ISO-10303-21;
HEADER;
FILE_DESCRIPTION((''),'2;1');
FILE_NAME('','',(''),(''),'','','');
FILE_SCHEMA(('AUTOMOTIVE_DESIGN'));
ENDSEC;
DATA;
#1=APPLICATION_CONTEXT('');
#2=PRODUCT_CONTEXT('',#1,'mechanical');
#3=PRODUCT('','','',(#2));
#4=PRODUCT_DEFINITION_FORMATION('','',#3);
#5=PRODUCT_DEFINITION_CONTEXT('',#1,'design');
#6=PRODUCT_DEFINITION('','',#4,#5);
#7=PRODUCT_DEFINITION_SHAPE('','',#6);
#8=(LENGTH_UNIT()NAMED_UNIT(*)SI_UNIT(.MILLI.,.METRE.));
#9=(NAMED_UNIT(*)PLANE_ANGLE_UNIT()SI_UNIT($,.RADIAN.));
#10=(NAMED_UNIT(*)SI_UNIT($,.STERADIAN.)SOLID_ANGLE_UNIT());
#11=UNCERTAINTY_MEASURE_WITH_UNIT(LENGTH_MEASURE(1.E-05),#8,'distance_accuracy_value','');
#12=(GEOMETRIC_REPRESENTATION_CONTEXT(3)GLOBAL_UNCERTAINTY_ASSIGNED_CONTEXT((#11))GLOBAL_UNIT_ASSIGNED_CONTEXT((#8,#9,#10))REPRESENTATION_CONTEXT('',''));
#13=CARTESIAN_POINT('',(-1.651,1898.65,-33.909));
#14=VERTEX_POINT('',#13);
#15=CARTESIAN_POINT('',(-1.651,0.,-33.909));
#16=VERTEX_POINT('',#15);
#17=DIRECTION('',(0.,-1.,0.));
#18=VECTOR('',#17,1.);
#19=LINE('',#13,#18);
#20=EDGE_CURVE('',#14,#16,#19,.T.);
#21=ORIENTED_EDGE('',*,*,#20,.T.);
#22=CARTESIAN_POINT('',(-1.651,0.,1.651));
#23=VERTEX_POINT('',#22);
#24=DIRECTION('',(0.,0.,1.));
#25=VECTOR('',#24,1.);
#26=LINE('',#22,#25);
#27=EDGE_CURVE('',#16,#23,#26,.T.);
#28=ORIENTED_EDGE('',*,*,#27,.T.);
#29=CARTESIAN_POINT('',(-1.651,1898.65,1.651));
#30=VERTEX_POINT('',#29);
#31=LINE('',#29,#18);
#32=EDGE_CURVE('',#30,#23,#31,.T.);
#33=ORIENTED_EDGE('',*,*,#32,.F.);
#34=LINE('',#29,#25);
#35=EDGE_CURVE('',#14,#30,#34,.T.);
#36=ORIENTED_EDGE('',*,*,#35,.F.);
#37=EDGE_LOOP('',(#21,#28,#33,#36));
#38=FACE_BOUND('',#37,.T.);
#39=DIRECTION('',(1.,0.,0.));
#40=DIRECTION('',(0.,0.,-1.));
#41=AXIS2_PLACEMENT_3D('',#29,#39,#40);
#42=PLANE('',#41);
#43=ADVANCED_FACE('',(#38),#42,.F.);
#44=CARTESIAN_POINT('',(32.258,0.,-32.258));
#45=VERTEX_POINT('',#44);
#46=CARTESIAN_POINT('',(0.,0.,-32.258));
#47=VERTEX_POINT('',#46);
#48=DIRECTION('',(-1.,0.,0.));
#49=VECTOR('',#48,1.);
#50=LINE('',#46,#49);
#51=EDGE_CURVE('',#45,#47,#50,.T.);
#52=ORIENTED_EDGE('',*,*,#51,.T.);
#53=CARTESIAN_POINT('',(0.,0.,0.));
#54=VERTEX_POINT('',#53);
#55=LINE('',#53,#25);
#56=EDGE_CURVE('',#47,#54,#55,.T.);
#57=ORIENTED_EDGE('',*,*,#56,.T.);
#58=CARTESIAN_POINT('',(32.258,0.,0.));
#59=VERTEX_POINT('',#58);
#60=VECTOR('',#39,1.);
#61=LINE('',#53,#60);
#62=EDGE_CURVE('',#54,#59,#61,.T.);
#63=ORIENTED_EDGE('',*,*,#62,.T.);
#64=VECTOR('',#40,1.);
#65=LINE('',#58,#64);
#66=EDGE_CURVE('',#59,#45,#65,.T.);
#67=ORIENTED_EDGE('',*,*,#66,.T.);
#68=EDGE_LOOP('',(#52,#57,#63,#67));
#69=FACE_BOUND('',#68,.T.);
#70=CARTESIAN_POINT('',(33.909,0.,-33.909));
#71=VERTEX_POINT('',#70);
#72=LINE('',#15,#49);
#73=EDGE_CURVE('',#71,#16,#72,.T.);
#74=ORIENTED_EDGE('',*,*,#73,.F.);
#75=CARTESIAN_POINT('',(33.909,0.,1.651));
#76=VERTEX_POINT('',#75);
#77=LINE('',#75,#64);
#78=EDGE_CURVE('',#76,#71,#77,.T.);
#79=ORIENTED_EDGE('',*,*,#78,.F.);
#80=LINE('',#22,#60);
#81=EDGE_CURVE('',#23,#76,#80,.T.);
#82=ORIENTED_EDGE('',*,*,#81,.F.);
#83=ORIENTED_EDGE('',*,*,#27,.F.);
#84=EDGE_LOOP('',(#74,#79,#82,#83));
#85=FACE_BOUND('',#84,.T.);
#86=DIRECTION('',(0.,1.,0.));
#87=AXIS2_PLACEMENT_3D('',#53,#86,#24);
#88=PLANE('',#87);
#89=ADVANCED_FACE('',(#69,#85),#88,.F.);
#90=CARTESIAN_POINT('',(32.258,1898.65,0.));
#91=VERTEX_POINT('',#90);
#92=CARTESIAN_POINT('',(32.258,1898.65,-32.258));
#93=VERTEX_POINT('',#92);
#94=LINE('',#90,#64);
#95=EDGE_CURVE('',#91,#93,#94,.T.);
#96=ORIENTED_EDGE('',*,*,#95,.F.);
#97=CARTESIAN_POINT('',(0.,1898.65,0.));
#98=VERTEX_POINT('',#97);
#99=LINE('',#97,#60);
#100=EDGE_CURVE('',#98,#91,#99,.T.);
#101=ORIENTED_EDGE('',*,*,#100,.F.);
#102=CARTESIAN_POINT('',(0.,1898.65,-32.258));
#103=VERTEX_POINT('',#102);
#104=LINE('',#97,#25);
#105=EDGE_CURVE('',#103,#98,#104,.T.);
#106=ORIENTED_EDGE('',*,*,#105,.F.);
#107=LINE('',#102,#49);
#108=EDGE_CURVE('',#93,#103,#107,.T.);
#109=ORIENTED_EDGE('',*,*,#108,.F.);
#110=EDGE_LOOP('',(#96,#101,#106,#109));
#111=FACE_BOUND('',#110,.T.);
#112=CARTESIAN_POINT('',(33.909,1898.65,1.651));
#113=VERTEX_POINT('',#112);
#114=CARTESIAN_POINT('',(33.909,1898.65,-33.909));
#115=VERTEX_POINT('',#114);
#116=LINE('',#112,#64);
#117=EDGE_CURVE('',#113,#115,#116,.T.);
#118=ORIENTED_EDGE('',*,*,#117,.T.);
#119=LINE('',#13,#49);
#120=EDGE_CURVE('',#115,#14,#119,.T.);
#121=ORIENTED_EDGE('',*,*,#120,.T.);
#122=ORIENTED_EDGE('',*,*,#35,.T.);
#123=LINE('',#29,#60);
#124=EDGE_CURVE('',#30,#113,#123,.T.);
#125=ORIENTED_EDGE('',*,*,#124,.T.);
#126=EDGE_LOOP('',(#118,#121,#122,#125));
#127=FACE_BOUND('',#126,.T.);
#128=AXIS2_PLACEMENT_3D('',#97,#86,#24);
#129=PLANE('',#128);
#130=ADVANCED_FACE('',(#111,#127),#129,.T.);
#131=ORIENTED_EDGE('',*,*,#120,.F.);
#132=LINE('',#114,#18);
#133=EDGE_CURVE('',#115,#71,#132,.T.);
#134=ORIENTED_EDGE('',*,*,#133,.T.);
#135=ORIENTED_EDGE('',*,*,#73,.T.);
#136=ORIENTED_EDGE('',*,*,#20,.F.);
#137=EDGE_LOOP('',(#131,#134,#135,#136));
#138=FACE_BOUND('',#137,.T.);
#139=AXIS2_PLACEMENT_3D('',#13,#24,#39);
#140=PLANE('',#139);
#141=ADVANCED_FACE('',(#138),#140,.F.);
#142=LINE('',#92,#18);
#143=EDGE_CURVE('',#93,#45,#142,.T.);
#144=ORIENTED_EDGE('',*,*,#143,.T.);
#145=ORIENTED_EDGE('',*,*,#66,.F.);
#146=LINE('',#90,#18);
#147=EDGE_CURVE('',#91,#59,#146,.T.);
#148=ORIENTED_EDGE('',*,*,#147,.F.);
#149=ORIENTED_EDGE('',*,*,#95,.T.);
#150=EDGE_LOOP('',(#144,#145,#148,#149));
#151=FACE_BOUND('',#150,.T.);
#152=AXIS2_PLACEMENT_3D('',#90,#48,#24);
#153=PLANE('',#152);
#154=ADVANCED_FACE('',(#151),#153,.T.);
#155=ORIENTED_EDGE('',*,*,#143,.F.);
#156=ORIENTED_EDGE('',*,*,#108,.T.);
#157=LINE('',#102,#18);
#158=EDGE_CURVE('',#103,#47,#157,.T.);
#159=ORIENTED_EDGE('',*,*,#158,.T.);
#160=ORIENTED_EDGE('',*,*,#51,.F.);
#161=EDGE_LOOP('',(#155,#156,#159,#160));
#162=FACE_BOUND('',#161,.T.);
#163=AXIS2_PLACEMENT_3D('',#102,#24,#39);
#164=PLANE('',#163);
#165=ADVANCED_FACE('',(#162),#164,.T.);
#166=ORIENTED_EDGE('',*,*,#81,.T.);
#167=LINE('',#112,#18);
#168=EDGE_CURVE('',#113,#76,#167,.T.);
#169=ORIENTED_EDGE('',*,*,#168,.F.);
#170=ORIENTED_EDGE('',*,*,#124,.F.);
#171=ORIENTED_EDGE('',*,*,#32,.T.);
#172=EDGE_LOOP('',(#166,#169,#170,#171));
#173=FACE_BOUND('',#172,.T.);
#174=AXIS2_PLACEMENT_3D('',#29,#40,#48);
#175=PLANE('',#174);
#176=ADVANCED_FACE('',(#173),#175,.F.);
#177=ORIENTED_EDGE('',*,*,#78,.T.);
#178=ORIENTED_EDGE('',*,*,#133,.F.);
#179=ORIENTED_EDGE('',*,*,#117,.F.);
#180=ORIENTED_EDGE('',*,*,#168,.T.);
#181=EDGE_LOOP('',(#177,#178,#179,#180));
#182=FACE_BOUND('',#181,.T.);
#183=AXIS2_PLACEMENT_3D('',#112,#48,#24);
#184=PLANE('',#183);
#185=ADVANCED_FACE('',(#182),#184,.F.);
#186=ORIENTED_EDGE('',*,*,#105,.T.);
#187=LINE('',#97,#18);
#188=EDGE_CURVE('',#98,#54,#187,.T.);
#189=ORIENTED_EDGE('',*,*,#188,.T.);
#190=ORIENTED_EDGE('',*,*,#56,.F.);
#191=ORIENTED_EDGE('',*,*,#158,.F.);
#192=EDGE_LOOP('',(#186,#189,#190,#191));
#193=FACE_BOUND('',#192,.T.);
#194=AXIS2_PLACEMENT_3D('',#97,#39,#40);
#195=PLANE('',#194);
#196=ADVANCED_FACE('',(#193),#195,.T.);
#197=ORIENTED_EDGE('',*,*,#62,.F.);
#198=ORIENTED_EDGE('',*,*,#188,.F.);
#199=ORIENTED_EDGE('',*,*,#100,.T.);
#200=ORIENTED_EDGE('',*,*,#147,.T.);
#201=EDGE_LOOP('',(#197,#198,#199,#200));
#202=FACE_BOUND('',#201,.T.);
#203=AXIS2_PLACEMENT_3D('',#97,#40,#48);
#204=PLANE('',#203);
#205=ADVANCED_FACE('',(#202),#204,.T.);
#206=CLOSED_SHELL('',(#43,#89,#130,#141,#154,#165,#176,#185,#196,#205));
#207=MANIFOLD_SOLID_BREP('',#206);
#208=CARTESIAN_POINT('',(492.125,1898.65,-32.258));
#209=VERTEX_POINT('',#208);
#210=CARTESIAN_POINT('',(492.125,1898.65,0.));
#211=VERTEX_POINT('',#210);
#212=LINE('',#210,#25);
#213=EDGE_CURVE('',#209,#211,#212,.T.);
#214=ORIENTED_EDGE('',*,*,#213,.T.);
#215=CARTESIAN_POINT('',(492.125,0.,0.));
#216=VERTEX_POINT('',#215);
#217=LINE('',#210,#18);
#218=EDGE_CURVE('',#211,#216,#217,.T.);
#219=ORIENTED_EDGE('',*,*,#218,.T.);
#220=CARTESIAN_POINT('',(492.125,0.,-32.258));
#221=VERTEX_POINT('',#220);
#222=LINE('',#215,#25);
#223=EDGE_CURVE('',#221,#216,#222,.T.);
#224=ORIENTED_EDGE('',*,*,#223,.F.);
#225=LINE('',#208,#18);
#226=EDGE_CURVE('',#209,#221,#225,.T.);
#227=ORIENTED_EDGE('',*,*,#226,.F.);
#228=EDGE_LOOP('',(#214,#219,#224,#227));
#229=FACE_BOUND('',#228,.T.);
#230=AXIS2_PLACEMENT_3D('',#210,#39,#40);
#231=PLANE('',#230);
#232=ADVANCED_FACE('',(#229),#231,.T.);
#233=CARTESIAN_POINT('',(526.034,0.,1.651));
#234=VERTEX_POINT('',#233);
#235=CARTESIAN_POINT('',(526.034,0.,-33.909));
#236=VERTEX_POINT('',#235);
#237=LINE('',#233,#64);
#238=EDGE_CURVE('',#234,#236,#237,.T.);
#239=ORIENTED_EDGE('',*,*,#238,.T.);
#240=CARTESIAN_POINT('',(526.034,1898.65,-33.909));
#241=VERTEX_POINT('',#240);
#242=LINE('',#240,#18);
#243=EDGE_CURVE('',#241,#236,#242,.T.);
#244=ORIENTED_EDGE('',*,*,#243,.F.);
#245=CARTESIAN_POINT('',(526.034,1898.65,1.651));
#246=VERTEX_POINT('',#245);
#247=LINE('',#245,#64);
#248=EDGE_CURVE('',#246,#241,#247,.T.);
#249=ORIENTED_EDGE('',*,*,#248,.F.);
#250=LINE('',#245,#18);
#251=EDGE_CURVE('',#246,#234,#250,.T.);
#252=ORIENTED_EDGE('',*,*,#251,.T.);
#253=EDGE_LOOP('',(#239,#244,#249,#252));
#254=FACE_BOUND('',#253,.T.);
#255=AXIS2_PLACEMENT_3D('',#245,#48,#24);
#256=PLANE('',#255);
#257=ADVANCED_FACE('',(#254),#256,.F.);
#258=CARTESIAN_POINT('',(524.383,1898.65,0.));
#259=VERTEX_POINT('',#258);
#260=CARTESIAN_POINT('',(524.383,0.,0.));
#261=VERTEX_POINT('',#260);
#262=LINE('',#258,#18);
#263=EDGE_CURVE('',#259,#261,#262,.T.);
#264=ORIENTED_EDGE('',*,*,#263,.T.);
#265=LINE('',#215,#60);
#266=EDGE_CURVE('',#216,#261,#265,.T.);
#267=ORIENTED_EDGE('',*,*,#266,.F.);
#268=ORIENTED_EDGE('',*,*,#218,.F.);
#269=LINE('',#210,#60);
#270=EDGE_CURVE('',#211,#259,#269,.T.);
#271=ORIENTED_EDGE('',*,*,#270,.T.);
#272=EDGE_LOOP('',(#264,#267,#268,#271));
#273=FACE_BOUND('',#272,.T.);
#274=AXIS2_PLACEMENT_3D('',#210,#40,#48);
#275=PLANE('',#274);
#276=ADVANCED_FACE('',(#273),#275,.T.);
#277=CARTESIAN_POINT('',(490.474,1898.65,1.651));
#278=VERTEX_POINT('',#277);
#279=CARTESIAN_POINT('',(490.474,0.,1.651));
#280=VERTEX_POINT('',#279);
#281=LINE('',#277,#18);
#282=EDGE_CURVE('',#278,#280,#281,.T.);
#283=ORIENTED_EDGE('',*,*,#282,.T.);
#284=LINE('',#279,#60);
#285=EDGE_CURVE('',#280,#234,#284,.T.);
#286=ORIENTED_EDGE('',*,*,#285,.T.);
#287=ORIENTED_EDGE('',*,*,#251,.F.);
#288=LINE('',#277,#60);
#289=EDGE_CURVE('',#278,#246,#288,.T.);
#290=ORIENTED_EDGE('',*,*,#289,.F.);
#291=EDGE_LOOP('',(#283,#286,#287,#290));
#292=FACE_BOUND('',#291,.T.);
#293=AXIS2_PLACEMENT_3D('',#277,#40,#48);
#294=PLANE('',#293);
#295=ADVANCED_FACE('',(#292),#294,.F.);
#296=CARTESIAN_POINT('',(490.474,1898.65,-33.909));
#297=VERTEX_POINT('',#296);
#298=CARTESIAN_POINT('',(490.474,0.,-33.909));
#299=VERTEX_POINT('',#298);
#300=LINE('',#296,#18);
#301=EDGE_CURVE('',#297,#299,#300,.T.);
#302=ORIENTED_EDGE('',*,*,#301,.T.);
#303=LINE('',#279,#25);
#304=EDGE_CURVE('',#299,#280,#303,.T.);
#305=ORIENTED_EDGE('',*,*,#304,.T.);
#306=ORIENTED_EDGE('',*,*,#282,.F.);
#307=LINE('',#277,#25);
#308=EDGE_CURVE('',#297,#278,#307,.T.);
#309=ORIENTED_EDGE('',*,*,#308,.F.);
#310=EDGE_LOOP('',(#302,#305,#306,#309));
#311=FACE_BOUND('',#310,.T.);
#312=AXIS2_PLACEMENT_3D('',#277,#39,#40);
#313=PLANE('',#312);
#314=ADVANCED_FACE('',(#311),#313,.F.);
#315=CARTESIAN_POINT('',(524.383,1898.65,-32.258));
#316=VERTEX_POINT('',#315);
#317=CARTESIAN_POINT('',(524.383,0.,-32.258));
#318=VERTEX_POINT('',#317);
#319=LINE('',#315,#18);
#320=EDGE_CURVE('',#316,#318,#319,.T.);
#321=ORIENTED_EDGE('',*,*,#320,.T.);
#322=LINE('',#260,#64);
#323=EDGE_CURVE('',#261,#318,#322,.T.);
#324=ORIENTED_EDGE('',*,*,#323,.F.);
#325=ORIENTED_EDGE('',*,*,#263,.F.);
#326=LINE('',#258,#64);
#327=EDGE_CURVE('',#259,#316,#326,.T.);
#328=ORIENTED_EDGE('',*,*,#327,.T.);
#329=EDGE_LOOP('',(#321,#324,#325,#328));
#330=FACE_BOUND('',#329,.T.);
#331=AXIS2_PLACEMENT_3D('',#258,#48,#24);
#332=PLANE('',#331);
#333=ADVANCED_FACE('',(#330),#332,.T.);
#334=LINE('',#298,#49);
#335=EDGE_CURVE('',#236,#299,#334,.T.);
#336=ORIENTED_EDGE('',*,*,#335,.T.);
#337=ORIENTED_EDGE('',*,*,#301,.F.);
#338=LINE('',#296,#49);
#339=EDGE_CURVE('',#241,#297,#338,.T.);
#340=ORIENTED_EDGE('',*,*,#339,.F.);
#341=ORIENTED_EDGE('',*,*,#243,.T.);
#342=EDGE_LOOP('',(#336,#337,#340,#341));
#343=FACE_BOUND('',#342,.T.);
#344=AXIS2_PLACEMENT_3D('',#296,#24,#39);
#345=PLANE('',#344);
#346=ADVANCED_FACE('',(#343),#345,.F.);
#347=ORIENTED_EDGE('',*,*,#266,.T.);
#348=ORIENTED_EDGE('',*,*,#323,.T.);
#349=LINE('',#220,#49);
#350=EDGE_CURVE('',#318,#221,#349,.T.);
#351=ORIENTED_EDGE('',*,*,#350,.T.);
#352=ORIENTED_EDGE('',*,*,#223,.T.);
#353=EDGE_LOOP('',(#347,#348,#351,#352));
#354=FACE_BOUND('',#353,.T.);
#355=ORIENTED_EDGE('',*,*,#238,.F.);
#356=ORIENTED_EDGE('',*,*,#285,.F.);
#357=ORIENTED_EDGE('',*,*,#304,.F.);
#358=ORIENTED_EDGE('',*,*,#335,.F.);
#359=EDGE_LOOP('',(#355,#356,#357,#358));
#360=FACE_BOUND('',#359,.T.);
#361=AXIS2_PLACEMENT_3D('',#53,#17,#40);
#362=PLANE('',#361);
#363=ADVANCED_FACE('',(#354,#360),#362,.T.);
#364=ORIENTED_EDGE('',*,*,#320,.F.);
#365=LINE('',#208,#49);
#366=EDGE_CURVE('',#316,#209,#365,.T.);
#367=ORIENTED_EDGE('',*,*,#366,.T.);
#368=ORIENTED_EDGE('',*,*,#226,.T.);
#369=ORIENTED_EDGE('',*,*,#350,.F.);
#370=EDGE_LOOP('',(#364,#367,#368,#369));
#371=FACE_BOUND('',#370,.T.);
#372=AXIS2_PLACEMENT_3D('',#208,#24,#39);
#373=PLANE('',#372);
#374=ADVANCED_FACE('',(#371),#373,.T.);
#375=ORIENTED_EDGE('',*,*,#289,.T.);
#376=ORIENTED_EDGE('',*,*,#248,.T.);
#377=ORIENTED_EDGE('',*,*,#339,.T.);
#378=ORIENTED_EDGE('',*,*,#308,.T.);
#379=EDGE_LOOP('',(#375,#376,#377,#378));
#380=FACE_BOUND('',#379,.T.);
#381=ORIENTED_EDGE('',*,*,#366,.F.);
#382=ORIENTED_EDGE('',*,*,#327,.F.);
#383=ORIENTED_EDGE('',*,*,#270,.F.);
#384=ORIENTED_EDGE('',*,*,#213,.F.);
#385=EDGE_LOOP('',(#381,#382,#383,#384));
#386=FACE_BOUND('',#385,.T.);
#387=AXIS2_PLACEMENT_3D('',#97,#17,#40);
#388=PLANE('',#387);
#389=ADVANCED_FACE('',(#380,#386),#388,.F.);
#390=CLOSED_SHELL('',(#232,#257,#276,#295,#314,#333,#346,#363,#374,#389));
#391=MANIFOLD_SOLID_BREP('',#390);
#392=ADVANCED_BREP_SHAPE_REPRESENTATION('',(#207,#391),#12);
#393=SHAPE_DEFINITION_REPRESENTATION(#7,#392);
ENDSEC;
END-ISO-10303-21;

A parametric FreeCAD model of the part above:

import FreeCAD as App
import Part
import Sketcher
from FreeCAD import Vector
Q = App.Units.Quantity


def add_polygon(sketch, points):
    """Adds a closed chain of lines whose ends are joined by coincident constraints."""
    first, n = sketch.GeometryCount, len(points)
    for a, b in zip(points, points[1:] + points[:1]):
        sketch.addGeometry(Part.LineSegment(App.Vector(*a, 0), App.Vector(*b, 0)), False)
    for i in range(n):
        sketch.addConstraint(Sketcher.Constraint("Coincident", first + i, 2, first + (i + 1) % n, 1))

doc = App.newDocument("Part")
body = doc.addObject("PartDesign::Body", "Body")

sketch1 = doc.addObject("Sketcher::SketchObject", "Sketch")
body.addObject(sketch1)
sketch1.AttachmentSupport = (doc.XZ_Plane, [""])
sketch1.MapMode = "FlatFace"
add_polygon(sketch1, [(-1.651, -33.909), (-1.651, 1.651), (33.909, 1.651), (33.909, -33.909)])
add_polygon(sketch1, [(32.258, 0), (0, 0), (0, -32.258), (32.258, -32.258)])
sketch1.addConstraint([
    Sketcher.Constraint("Vertical", 0),
    Sketcher.Constraint("Horizontal", 1),
    Sketcher.Constraint("Vertical", 2),
    Sketcher.Constraint("Horizontal", 3),
    Sketcher.Constraint("Horizontal", 4),
    Sketcher.Constraint("Vertical", 5),
    Sketcher.Constraint("Horizontal", 6),
    Sketcher.Constraint("Vertical", 7),
    Sketcher.Constraint("Coincident", 4, 2, -1, 1),
    Sketcher.Constraint("Equal", 3, 0),
    Sketcher.Constraint("Equal", 6, 5),
    Sketcher.Constraint("DistanceX", 1, 1, 1, 2, Q("1.4 in")),
    Sketcher.Constraint("DistanceX", 4, 2, 4, 1, Q("1.27 in")),
    Sketcher.Constraint("DistanceX", 0, 2, -1, 1, Q("0.065 in")),
    Sketcher.Constraint("DistanceY", -1, 1, 0, 2, Q("0.065 in")),
])
pad1 = doc.addObject("PartDesign::Pad", "Pad")
body.addObject(pad1)
pad1.Profile = sketch1
pad1.Length = Q("74.75 in")
pad1.Reversed = True
body2 = doc.addObject("PartDesign::Body", "Body001")

sketch2 = doc.addObject("Sketcher::SketchObject", "Sketch001")
body2.addObject(sketch2)
sketch2.AttachmentSupport = (doc.getObject("XZ_Plane001"), [""])
sketch2.MapMode = "FlatFace"
add_polygon(sketch2, [(490.474, -33.909), (490.474, 1.651), (526.034, 1.651), (526.034, -33.909)])
add_polygon(sketch2, [(524.383, 0), (492.125, 0), (492.125, -32.258), (524.383, -32.258)])
sketch2.addConstraint([
    Sketcher.Constraint("Vertical", 0),
    Sketcher.Constraint("Horizontal", 1),
    Sketcher.Constraint("Vertical", 2),
    Sketcher.Constraint("Horizontal", 3),
    Sketcher.Constraint("Horizontal", 4),
    Sketcher.Constraint("Vertical", 5),
    Sketcher.Constraint("Horizontal", 6),
    Sketcher.Constraint("Vertical", 7),
    Sketcher.Constraint("PointOnObject", 4, 2, -1),
    Sketcher.Constraint("Equal", 3, 0),
    Sketcher.Constraint("Equal", 6, 5),
    Sketcher.Constraint("DistanceX", 1, 1, 1, 2, Q("1.4 in")),
    Sketcher.Constraint("DistanceX", 4, 2, 4, 1, Q("1.27 in")),
    Sketcher.Constraint("DistanceX", -1, 1, 0, 2, Q("19.31 in")),
    Sketcher.Constraint("DistanceY", -1, 1, 0, 2, Q("0.065 in")),
    Sketcher.Constraint("DistanceX", -1, 1, 4, 2, Q("19.375 in")),
])
pad2 = doc.addObject("PartDesign::Pad", "Pad001")
body2.addObject(pad2)
pad2.Profile = sketch2
pad2.Length = Q("74.75 in")
pad2.Reversed = True

doc.recompute()
